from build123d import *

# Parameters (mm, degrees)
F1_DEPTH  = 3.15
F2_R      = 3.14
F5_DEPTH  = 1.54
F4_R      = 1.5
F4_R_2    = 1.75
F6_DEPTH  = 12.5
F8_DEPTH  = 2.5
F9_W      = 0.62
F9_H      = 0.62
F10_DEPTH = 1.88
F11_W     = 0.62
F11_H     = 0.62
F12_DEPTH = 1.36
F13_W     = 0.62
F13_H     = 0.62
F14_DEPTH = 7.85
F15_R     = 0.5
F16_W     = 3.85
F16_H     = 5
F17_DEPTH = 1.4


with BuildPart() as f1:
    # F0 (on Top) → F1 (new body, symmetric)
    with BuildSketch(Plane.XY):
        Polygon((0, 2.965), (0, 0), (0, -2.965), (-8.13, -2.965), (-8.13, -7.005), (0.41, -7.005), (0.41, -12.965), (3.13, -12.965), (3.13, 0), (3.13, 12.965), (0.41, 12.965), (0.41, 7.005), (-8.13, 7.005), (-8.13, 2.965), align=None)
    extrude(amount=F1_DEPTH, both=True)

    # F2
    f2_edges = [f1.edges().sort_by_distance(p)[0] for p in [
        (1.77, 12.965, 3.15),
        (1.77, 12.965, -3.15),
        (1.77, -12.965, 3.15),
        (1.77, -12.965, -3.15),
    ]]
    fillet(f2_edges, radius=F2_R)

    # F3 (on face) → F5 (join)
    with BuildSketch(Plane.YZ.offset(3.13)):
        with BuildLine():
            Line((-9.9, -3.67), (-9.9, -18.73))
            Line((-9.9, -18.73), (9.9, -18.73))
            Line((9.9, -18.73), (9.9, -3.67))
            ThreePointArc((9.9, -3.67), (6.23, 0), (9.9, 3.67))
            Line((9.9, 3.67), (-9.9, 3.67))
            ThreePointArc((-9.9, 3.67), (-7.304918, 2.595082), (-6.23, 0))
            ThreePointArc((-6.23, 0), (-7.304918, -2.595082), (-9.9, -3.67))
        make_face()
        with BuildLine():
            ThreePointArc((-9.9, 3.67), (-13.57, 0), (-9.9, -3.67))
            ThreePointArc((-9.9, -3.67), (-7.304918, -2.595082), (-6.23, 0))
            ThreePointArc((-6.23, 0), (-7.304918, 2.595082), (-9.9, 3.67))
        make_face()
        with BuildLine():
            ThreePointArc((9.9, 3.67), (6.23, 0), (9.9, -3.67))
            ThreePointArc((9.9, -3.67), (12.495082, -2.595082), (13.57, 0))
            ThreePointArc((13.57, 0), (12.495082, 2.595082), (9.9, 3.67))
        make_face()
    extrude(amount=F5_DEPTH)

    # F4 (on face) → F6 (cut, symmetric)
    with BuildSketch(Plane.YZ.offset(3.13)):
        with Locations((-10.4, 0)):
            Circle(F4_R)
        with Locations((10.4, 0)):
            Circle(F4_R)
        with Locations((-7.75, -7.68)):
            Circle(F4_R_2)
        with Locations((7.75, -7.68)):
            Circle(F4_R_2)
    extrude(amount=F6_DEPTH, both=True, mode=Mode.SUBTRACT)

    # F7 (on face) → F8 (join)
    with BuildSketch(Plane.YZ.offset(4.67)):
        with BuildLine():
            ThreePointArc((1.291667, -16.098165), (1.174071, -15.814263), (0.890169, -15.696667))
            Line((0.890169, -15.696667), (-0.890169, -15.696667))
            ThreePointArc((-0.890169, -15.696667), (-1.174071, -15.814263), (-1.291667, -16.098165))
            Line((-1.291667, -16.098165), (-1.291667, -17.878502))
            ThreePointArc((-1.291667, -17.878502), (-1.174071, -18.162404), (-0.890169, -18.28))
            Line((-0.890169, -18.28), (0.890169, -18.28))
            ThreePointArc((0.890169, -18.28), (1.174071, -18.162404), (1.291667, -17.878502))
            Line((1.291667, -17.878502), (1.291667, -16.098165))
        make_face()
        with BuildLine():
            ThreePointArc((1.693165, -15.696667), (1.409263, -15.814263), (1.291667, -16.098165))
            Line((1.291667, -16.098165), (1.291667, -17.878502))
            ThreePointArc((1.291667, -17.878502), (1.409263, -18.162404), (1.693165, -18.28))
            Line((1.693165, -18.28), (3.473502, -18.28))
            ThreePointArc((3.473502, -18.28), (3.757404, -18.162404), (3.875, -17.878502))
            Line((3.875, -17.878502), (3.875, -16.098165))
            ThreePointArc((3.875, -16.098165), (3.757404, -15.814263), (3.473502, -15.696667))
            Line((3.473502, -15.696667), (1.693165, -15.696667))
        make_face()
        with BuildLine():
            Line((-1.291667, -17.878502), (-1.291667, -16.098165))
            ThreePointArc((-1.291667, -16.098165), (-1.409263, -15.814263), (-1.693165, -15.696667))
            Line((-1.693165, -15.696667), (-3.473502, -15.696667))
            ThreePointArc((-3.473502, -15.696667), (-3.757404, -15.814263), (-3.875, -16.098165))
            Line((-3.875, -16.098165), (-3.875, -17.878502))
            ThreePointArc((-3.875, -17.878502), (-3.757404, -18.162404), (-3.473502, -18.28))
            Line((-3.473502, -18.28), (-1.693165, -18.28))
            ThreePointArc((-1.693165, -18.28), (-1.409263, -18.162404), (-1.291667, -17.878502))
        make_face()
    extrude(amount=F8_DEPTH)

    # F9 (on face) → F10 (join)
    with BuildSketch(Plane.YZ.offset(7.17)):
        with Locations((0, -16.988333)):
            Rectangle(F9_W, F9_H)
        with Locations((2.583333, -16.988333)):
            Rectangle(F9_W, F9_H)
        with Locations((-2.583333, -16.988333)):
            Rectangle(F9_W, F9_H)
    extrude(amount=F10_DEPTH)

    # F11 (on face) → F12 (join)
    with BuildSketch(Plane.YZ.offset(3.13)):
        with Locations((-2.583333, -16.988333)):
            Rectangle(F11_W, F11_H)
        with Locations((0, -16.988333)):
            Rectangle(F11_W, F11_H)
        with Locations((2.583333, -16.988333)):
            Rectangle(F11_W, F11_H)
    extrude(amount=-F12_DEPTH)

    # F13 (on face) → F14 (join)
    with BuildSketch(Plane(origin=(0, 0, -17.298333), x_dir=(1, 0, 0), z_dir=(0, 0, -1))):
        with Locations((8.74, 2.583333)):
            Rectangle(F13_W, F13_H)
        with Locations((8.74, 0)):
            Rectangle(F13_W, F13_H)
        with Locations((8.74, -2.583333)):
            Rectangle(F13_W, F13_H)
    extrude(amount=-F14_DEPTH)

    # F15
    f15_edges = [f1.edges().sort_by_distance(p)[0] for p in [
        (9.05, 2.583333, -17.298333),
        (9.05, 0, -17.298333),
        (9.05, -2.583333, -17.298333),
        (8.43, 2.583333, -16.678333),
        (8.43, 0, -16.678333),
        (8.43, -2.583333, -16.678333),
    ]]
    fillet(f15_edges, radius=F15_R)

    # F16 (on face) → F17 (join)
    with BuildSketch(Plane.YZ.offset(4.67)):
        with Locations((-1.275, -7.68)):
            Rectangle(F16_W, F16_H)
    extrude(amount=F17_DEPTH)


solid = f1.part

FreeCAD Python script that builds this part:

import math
import FreeCAD as App
import Part
import Sketcher
Q = App.Units.Quantity


def edges_at(feature, points):
    """Names of the edges that pass closest to the given points."""
    edges = feature.Shape.Edges
    near = lambda p: min(range(len(edges)), key=lambda i: edges[i].distToShape(Part.Vertex(*p))[0])
    return sorted({f"Edge{near(p) + 1}" for p in points})

doc = App.newDocument("Part")
body = doc.addObject("PartDesign::Body", "Body")

sketch1 = body.newObject("Sketcher::SketchObject", "Sketch")
sketch1.AttachmentSupport = (doc.getObject("XY_Plane"), [""])
sketch1.MapMode = "FlatFace"
sketch1.addGeometry(Part.LineSegment(App.Vector(0, 3, 0), App.Vector(0, -3, 0)), False)
sketch1.addGeometry(Part.LineSegment(App.Vector(0, -3, 0), App.Vector(-8.1, -3, 0)), False)
sketch1.addGeometry(Part.LineSegment(App.Vector(-8.1, -3, 0), App.Vector(-8.1, -7, 0)), False)
sketch1.addGeometry(Part.LineSegment(App.Vector(-8.1, -7, 0), App.Vector(0.4, -7, 0)), False)
sketch1.addGeometry(Part.LineSegment(App.Vector(0.4, -7, 0), App.Vector(0.4, -13, 0)), False)
sketch1.addGeometry(Part.LineSegment(App.Vector(0.4, -13, 0), App.Vector(3.1, -13, 0)), False)
sketch1.addGeometry(Part.LineSegment(App.Vector(3.1, -13, 0), App.Vector(3.1, 13, 0)), False)
sketch1.addGeometry(Part.LineSegment(App.Vector(3.1, 13, 0), App.Vector(0.4, 13, 0)), False)
sketch1.addGeometry(Part.LineSegment(App.Vector(0.4, 13, 0), App.Vector(0.4, 7, 0)), False)
sketch1.addGeometry(Part.LineSegment(App.Vector(0.4, 7, 0), App.Vector(-8.1, 7, 0)), False)
sketch1.addGeometry(Part.LineSegment(App.Vector(-8.1, 7, 0), App.Vector(-8.1, 3, 0)), False)
sketch1.addGeometry(Part.LineSegment(App.Vector(-8.1, 3, 0), App.Vector(0, 3, 0)), False)
sketch1.addConstraint(Sketcher.Constraint("Coincident", 0, 2, 1, 1))
sketch1.addConstraint(Sketcher.Constraint("Coincident", 1, 2, 2, 1))
sketch1.addConstraint(Sketcher.Constraint("Coincident", 2, 2, 3, 1))
sketch1.addConstraint(Sketcher.Constraint("Coincident", 3, 2, 4, 1))
sketch1.addConstraint(Sketcher.Constraint("Coincident", 4, 2, 5, 1))
sketch1.addConstraint(Sketcher.Constraint("Coincident", 5, 2, 6, 1))
sketch1.addConstraint(Sketcher.Constraint("Coincident", 6, 2, 7, 1))
sketch1.addConstraint(Sketcher.Constraint("Coincident", 7, 2, 8, 1))
sketch1.addConstraint(Sketcher.Constraint("Coincident", 8, 2, 9, 1))
sketch1.addConstraint(Sketcher.Constraint("Coincident", 9, 2, 10, 1))
sketch1.addConstraint(Sketcher.Constraint("Coincident", 10, 2, 11, 1))
sketch1.addConstraint(Sketcher.Constraint("Coincident", 11, 2, 0, 1))
sketch1.addConstraint(Sketcher.Constraint("Vertical", 0))
sketch1.addConstraint(Sketcher.Constraint("Horizontal", 1))
sketch1.addConstraint(Sketcher.Constraint("Vertical", 2))
sketch1.addConstraint(Sketcher.Constraint("Horizontal", 3))
sketch1.addConstraint(Sketcher.Constraint("Vertical", 4))
sketch1.addConstraint(Sketcher.Constraint("Horizontal", 5))
sketch1.addConstraint(Sketcher.Constraint("Vertical", 6))
sketch1.addConstraint(Sketcher.Constraint("Horizontal", 7))
sketch1.addConstraint(Sketcher.Constraint("Vertical", 8))
sketch1.addConstraint(Sketcher.Constraint("Horizontal", 9))
sketch1.addConstraint(Sketcher.Constraint("Vertical", 10))
sketch1.addConstraint(Sketcher.Constraint("Horizontal", 11))
sketch1.addConstraint(Sketcher.Constraint("Symmetric", 0, 2, 11, 2, -1, 1))
sketch1.addConstraint(Sketcher.Constraint("Symmetric", 4, 2, 7, 2, -1))
sketch1.addConstraint(Sketcher.Constraint("Symmetric", 2, 2, 9, 2, -1))
sketch1.addConstraint(Sketcher.Constraint("DistanceY", 4, 2, 0, 2, Q("10 mm")))
sketch1.addConstraint(Sketcher.Constraint("DistanceX", 1, 2, 1, 1, Q("8.13 mm")))
sketch1.addConstraint(Sketcher.Constraint("DistanceX", 3, 1, 3, 2, Q("8.54 mm")))
sketch1.addConstraint(Sketcher.Constraint("DistanceX", 5, 1, 5, 2, Q("2.72 mm")))
sketch1.addConstraint(Sketcher.Constraint("DistanceY", 0, 2, 0, 1, Q("5.93 mm")))
sketch1.addConstraint(Sketcher.Constraint("DistanceY", 2, 2, 2, 1, Q("4.04 mm")))
pad1 = body.newObject("PartDesign::Pad", "Pad")
pad1.Profile = sketch1
pad1.Length = 6.3
pad1.Midplane = True
doc.recompute()

fillet = body.newObject("PartDesign::Fillet", "Fillet")
fillet.Base = (pad1, edges_at(pad1, [
    (1.77, 12.965, 3.15),
    (1.77, 12.965, -3.15),
    (1.77, -12.965, 3.15),
    (1.77, -12.965, -3.15),
]))
fillet.Radius = 3.14

sketch2 = body.newObject("Sketcher::SketchObject", "Sketch001")
sketch2.AttachmentSupport = (doc.getObject("YZ_Plane"), [""])
sketch2.MapMode = "FlatFace"
sketch2.AttachmentOffset = App.Placement(App.Vector(0, 0, 3.13), App.Rotation())
sketch2.addGeometry(Part.LineSegment(App.Vector(-9.9, -3.7, 0), App.Vector(-9.9, -18.7, 0)), False)
sketch2.addGeometry(Part.LineSegment(App.Vector(-9.9, -18.7, 0), App.Vector(9.9, -18.7, 0)), False)
sketch2.addGeometry(Part.LineSegment(App.Vector(9.9, -18.7, 0), App.Vector(9.9, -3.7, 0)), False)
sketch2.addGeometry(Part.ArcOfCircle(Part.Circle(App.Vector(9.9, 0, 0), App.Vector(0, 0, 1), 3.7), math.radians(-90), math.radians(0)), False)
sketch2.addGeometry(Part.ArcOfCircle(Part.Circle(App.Vector(9.9, 0, 0), App.Vector(0, 0, 1), 3.7), math.radians(0), math.radians(90)), False)
sketch2.addGeometry(Part.LineSegment(App.Vector(9.9, 3.7, 0), App.Vector(-9.9, 3.7, 0)), False)
sketch2.addGeometry(Part.ArcOfCircle(Part.Circle(App.Vector(-9.9, 0, 0), App.Vector(0, 0, 1), 3.7), math.radians(90), math.radians(270)), False)
sketch2.addConstraint(Sketcher.Constraint("Coincident", 0, 2, 1, 1))
sketch2.addConstraint(Sketcher.Constraint("Coincident", 1, 2, 2, 1))
sketch2.addConstraint(Sketcher.Constraint("Coincident", 2, 2, 3, 1))
sketch2.addConstraint(Sketcher.Constraint("Tangent", 3, 2, 4, 1))
sketch2.addConstraint(Sketcher.Constraint("Tangent", 4, 2, 5, 1))
sketch2.addConstraint(Sketcher.Constraint("Tangent", 5, 2, 6, 1))
sketch2.addConstraint(Sketcher.Constraint("Coincident", 6, 2, 0, 1))
sketch2.addConstraint(Sketcher.Constraint("Vertical", 0))
sketch2.addConstraint(Sketcher.Constraint("Horizontal", 1))
sketch2.addConstraint(Sketcher.Constraint("Vertical", 2))
sketch2.addConstraint(Sketcher.Constraint("Horizontal", 5))
sketch2.addConstraint(Sketcher.Constraint("Equal", 3, 4))
sketch2.addConstraint(Sketcher.Constraint("Equal", 4, 6))
sketch2.addConstraint(Sketcher.Constraint("Symmetric", 3, 3, 6, 3, -1, 1))
sketch2.addConstraint(Sketcher.Constraint("PointOnObject", 3, 2, -1))
sketch2.addConstraint(Sketcher.Constraint("Vertical", 6, 3, 0, 2))
sketch2.addConstraint(Sketcher.Constraint("Vertical", 4, 3, 1, 2))
sketch2.addConstraint(Sketcher.Constraint("Radius", 3, Q("3.67 mm")))
sketch2.addConstraint(Sketcher.Constraint("DistanceX", 1, 1, 1, 2, Q("19.8 mm")))
sketch2.addConstraint(Sketcher.Constraint("DistanceY", 0, 2, 0, 1, Q("15.06 mm")))
pad2 = body.newObject("PartDesign::Pad", "Pad001")
pad2.Profile = sketch2
pad2.Length = 1.54

sketch3 = body.newObject("Sketcher::SketchObject", "Sketch002")
sketch3.AttachmentSupport = (doc.getObject("YZ_Plane"), [""])
sketch3.MapMode = "FlatFace"
sketch3.AttachmentOffset = App.Placement(App.Vector(0, 0, 3.13), App.Rotation())
sketch3.addGeometry(Part.Circle(App.Vector(-10.4, 0, 0), App.Vector(0, 0, 1), 1.5), False)
sketch3.addGeometry(Part.Circle(App.Vector(10.4, 0, 0), App.Vector(0, 0, 1), 1.5), False)
sketch3.addGeometry(Part.Circle(App.Vector(-7.8, -7.7, 0), App.Vector(0, 0, 1), 1.8), False)
sketch3.addGeometry(Part.Circle(App.Vector(7.8, -7.7, 0), App.Vector(0, 0, 1), 1.8), False)
sketch3.addConstraint(Sketcher.Constraint("Equal", 0, 1))
sketch3.addConstraint(Sketcher.Constraint("Equal", 2, 3))
sketch3.addConstraint(Sketcher.Constraint("Symmetric", 0, 3, 1, 3, -1, 1))
sketch3.addConstraint(Sketcher.Constraint("Symmetric", 2, 3, 3, 3, -2))
sketch3.addConstraint(Sketcher.Constraint("PointOnObject", 0, 3, -1))
sketch3.addConstraint(Sketcher.Constraint("Diameter", 0, Q("3 mm")))
sketch3.addConstraint(Sketcher.Constraint("Diameter", 2, Q("3.5 mm")))
sketch3.addConstraint(Sketcher.Constraint("DistanceX", 0, 3, -1, 1, Q("10.4 mm")))
sketch3.addConstraint(Sketcher.Constraint("DistanceX", 2, 3, 3, 3, Q("15.5 mm")))
sketch3.addConstraint(Sketcher.Constraint("DistanceY", 2, 3, -1, 1, Q("7.68 mm")))
pocket1 = body.newObject("PartDesign::Pocket", "Pocket")
pocket1.Profile = sketch3
pocket1.Length = 25
pocket1.Midplane = True

sketch4 = body.newObject("Sketcher::SketchObject", "Sketch003")
sketch4.AttachmentSupport = (doc.getObject("YZ_Plane"), [""])
sketch4.MapMode = "FlatFace"
sketch4.AttachmentOffset = App.Placement(App.Vector(0, 0, 4.67), App.Rotation())
sketch4.addGeometry(Part.ArcOfCircle(Part.Circle(App.Vector(0.89, -16.1, 0), App.Vector(0, 0, 1), 0.4), math.radians(0), math.radians(90)), False)
sketch4.addGeometry(Part.LineSegment(App.Vector(0.89, -15.7, 0), App.Vector(-0.89, -15.7, 0)), False)
sketch4.addGeometry(Part.ArcOfCircle(Part.Circle(App.Vector(-0.89, -16.1, 0), App.Vector(0, 0, 1), 0.4), math.radians(90), math.radians(180)), False)
sketch4.addGeometry(Part.ArcOfCircle(Part.Circle(App.Vector(-1.69, -16.1, 0), App.Vector(0, 0, 1), 0.4), math.radians(0), math.radians(90)), False)
sketch4.addGeometry(Part.LineSegment(App.Vector(-1.69, -15.7, 0), App.Vector(-3.47, -15.7, 0)), False)
sketch4.addGeometry(Part.ArcOfCircle(Part.Circle(App.Vector(-3.47, -16.1, 0), App.Vector(0, 0, 1), 0.4), math.radians(90), math.radians(180)), False)
sketch4.addGeometry(Part.LineSegment(App.Vector(-3.88, -16.1, 0), App.Vector(-3.88, -17.88, 0)), False)
sketch4.addGeometry(Part.ArcOfCircle(Part.Circle(App.Vector(-3.47, -17.88, 0), App.Vector(0, 0, 1), 0.4), math.radians(180), math.radians(270)), False)
sketch4.addGeometry(Part.LineSegment(App.Vector(-3.47, -18.28, 0), App.Vector(-1.69, -18.28, 0)), False)
sketch4.addGeometry(Part.ArcOfCircle(Part.Circle(App.Vector(-1.69, -17.88, 0), App.Vector(0, 0, 1), 0.4), math.radians(-90), math.radians(0)), False)
sketch4.addGeometry(Part.ArcOfCircle(Part.Circle(App.Vector(-0.89, -17.88, 0), App.Vector(0, 0, 1), 0.4), math.radians(180), math.radians(270)), False)
sketch4.addGeometry(Part.LineSegment(App.Vector(-0.89, -18.28, 0), App.Vector(0.89, -18.28, 0)), False)
sketch4.addGeometry(Part.ArcOfCircle(Part.Circle(App.Vector(0.89, -17.88, 0), App.Vector(0, 0, 1), 0.4), math.radians(-90), math.radians(0)), False)
sketch4.addGeometry(Part.ArcOfCircle(Part.Circle(App.Vector(1.69, -17.88, 0), App.Vector(0, 0, 1), 0.4), math.radians(180), math.radians(270)), False)
sketch4.addGeometry(Part.LineSegment(App.Vector(1.69, -18.28, 0), App.Vector(3.47, -18.28, 0)), False)
sketch4.addGeometry(Part.ArcOfCircle(Part.Circle(App.Vector(3.47, -17.88, 0), App.Vector(0, 0, 1), 0.4), math.radians(-90), math.radians(0)), False)
sketch4.addGeometry(Part.LineSegment(App.Vector(3.88, -17.88, 0), App.Vector(3.88, -16.1, 0)), False)
sketch4.addGeometry(Part.ArcOfCircle(Part.Circle(App.Vector(3.47, -16.1, 0), App.Vector(0, 0, 1), 0.4), math.radians(0), math.radians(90)), False)
sketch4.addGeometry(Part.LineSegment(App.Vector(3.47, -15.7, 0), App.Vector(1.69, -15.7, 0)), False)
sketch4.addGeometry(Part.ArcOfCircle(Part.Circle(App.Vector(1.69, -16.1, 0), App.Vector(0, 0, 1), 0.4), math.radians(90), math.radians(180)), False)
sketch4.addConstraint(Sketcher.Constraint("Tangent", 0, 2, 1, 1))
sketch4.addConstraint(Sketcher.Constraint("Tangent", 1, 2, 2, 1))
sketch4.addConstraint(Sketcher.Constraint("Tangent", 2, 2, 3, 1))
sketch4.addConstraint(Sketcher.Constraint("Tangent", 3, 2, 4, 1))
sketch4.addConstraint(Sketcher.Constraint("Tangent", 4, 2, 5, 1))
sketch4.addConstraint(Sketcher.Constraint("Tangent", 5, 2, 6, 1))
sketch4.addConstraint(Sketcher.Constraint("Tangent", 6, 2, 7, 1))
sketch4.addConstraint(Sketcher.Constraint("Tangent", 7, 2, 8, 1))
sketch4.addConstraint(Sketcher.Constraint("Tangent", 8, 2, 9, 1))
sketch4.addConstraint(Sketcher.Constraint("Tangent", 9, 2, 10, 1))
sketch4.addConstraint(Sketcher.Constraint("Tangent", 10, 2, 11, 1))
sketch4.addConstraint(Sketcher.Constraint("Tangent", 11, 2, 12, 1))
sketch4.addConstraint(Sketcher.Constraint("Tangent", 12, 2, 13, 1))
sketch4.addConstraint(Sketcher.Constraint("Tangent", 13, 2, 14, 1))
sketch4.addConstraint(Sketcher.Constraint("Tangent", 14, 2, 15, 1))
sketch4.addConstraint(Sketcher.Constraint("Tangent", 15, 2, 16, 1))
sketch4.addConstraint(Sketcher.Constraint("Tangent", 16, 2, 17, 1))
sketch4.addConstraint(Sketcher.Constraint("Tangent", 17, 2, 18, 1))
sketch4.addConstraint(Sketcher.Constraint("Tangent", 18, 2, 19, 1))
sketch4.addConstraint(Sketcher.Constraint("Tangent", 19, 2, 0, 1))
sketch4.addConstraint(Sketcher.Constraint("Horizontal", 1))
sketch4.addConstraint(Sketcher.Constraint("Horizontal", 4))
sketch4.addConstraint(Sketcher.Constraint("Vertical", 6))
sketch4.addConstraint(Sketcher.Constraint("Horizontal", 8))
sketch4.addConstraint(Sketcher.Constraint("Horizontal", 11))
sketch4.addConstraint(Sketcher.Constraint("Horizontal", 14))
sketch4.addConstraint(Sketcher.Constraint("Vertical", 16))
sketch4.addConstraint(Sketcher.Constraint("Horizontal", 18))
sketch4.addConstraint(Sketcher.Constraint("Equal", 0, 2))
sketch4.addConstraint(Sketcher.Constraint("Equal", 2, 3))
sketch4.addConstraint(Sketcher.Constraint("Equal", 3, 5))
sketch4.addConstraint(Sketcher.Constraint("Equal", 5, 7))
sketch4.addConstraint(Sketcher.Constraint("Equal", 7, 9))
sketch4.addConstraint(Sketcher.Constraint("Equal", 9, 10))
sketch4.addConstraint(Sketcher.Constraint("Equal", 10, 12))
sketch4.addConstraint(Sketcher.Constraint("Equal", 12, 13))
sketch4.addConstraint(Sketcher.Constraint("Equal", 13, 15))
sketch4.addConstraint(Sketcher.Constraint("Equal", 15, 17))
sketch4.addConstraint(Sketcher.Constraint("Equal", 17, 19))
sketch4.addConstraint(Sketcher.Constraint("Symmetric", 9, 3, 13, 3, -2))
sketch4.addConstraint(Sketcher.Constraint("Symmetric", 5, 3, 17, 3, -2))
sketch4.addConstraint(Sketcher.Constraint("Horizontal", 2, 3, 3, 3))
sketch4.addConstraint(Sketcher.Constraint("Horizontal", 9, 3, 10, 3))
sketch4.addConstraint(Sketcher.Constraint("Vertical", 3, 3, 9, 3))
sketch4.addConstraint(Sketcher.Constraint("Vertical", 0, 3, 12, 3))
sketch4.addConstraint(Sketcher.Constraint("Equal", 1, 4))
sketch4.addConstraint(Sketcher.Constraint("Equal", 18, 6))
sketch4.addConstraint(Sketcher.Constraint("DistanceY", 7, 2, -1, 1, Q("18.28 mm")))
sketch4.addConstraint(Sketcher.Constraint("DistanceX", 5, 2, -1, 1, Q("3.875 mm")))
sketch4.addConstraint(Sketcher.Constraint("Radius", 0, Q("0.401498 mm")))
pad3 = body.newObject("PartDesign::Pad", "Pad002")
pad3.Profile = sketch4
pad3.Length = 2.5

sketch5 = body.newObject("Sketcher::SketchObject", "Sketch004")
sketch5.AttachmentSupport = (doc.getObject("YZ_Plane"), [""])
sketch5.MapMode = "FlatFace"
sketch5.AttachmentOffset = App.Placement(App.Vector(0, 0, 7.17), App.Rotation())
sketch5.addGeometry(Part.LineSegment(App.Vector(-0.3, -16.7, 0), App.Vector(-0.3, -17.3, 0)), False)
sketch5.addGeometry(Part.LineSegment(App.Vector(-0.3, -17.3, 0), App.Vector(0.3, -17.3, 0)), False)
sketch5.addGeometry(Part.LineSegment(App.Vector(0.3, -17.3, 0), App.Vector(0.3, -16.7, 0)), False)
sketch5.addGeometry(Part.LineSegment(App.Vector(0.3, -16.7, 0), App.Vector(-0.3, -16.7, 0)), False)
sketch5.addGeometry(Part.LineSegment(App.Vector(2.3, -16.7, 0), App.Vector(2.3, -17.3, 0)), False)
sketch5.addGeometry(Part.LineSegment(App.Vector(2.3, -17.3, 0), App.Vector(2.9, -17.3, 0)), False)
sketch5.addGeometry(Part.LineSegment(App.Vector(2.9, -17.3, 0), App.Vector(2.9, -16.7, 0)), False)
sketch5.addGeometry(Part.LineSegment(App.Vector(2.9, -16.7, 0), App.Vector(2.3, -16.7, 0)), False)
sketch5.addGeometry(Part.LineSegment(App.Vector(-2.9, -16.7, 0), App.Vector(-2.9, -17.3, 0)), False)
sketch5.addGeometry(Part.LineSegment(App.Vector(-2.9, -17.3, 0), App.Vector(-2.3, -17.3, 0)), False)
sketch5.addGeometry(Part.LineSegment(App.Vector(-2.3, -17.3, 0), App.Vector(-2.3, -16.7, 0)), False)
sketch5.addGeometry(Part.LineSegment(App.Vector(-2.3, -16.7, 0), App.Vector(-2.9, -16.7, 0)), False)
sketch5.addConstraint(Sketcher.Constraint("Coincident", 0, 2, 1, 1))
sketch5.addConstraint(Sketcher.Constraint("Coincident", 1, 2, 2, 1))
sketch5.addConstraint(Sketcher.Constraint("Coincident", 2, 2, 3, 1))
sketch5.addConstraint(Sketcher.Constraint("Coincident", 3, 2, 0, 1))
sketch5.addConstraint(Sketcher.Constraint("Coincident", 4, 2, 5, 1))
sketch5.addConstraint(Sketcher.Constraint("Coincident", 5, 2, 6, 1))
sketch5.addConstraint(Sketcher.Constraint("Coincident", 6, 2, 7, 1))
sketch5.addConstraint(Sketcher.Constraint("Coincident", 7, 2, 4, 1))
sketch5.addConstraint(Sketcher.Constraint("Coincident", 8, 2, 9, 1))
sketch5.addConstraint(Sketcher.Constraint("Coincident", 9, 2, 10, 1))
sketch5.addConstraint(Sketcher.Constraint("Coincident", 10, 2, 11, 1))
sketch5.addConstraint(Sketcher.Constraint("Coincident", 11, 2, 8, 1))
sketch5.addConstraint(Sketcher.Constraint("Vertical", 0))
sketch5.addConstraint(Sketcher.Constraint("Horizontal", 1))
sketch5.addConstraint(Sketcher.Constraint("Vertical", 2))
sketch5.addConstraint(Sketcher.Constraint("Horizontal", 3))
sketch5.addConstraint(Sketcher.Constraint("Vertical", 4))
sketch5.addConstraint(Sketcher.Constraint("Horizontal", 5))
sketch5.addConstraint(Sketcher.Constraint("Vertical", 6))
sketch5.addConstraint(Sketcher.Constraint("Horizontal", 7))
sketch5.addConstraint(Sketcher.Constraint("Vertical", 8))
sketch5.addConstraint(Sketcher.Constraint("Horizontal", 9))
sketch5.addConstraint(Sketcher.Constraint("Vertical", 10))
sketch5.addConstraint(Sketcher.Constraint("Horizontal", 11))
sketch5.addConstraint(Sketcher.Constraint("Symmetric", 5, 2, 8, 2, -2))
sketch5.addConstraint(Sketcher.Constraint("Symmetric", 7, 2, 10, 2, -2))
sketch5.addConstraint(Sketcher.Constraint("Horizontal", 1, 2, 4, 2))
sketch5.addConstraint(Sketcher.Constraint("Horizontal", 3, 2, 6, 2))
sketch5.addConstraint(Sketcher.Constraint("Equal", 3, 5))
sketch5.addConstraint(Sketcher.Constraint("Equal", 11, 0))
sketch5.addConstraint(Sketcher.Constraint("DistanceX", 1, 1, 1, 2, Q("0.62 mm")))
sketch5.addConstraint(Sketcher.Constraint("DistanceX", 0, 2, -1, 1, Q("0.31 mm")))
sketch5.addConstraint(Sketcher.Constraint("DistanceY", 0, 2, -1, 1, Q("17.298333 mm")))
sketch5.addConstraint(Sketcher.Constraint("DistanceX", -1, 1, 4, 2, Q("2.273333 mm")))
pad4 = body.newObject("PartDesign::Pad", "Pad003")
pad4.Profile = sketch5
pad4.Length = 1.88

sketch6 = body.newObject("Sketcher::SketchObject", "Sketch005")
sketch6.AttachmentSupport = (doc.getObject("YZ_Plane"), [""])
sketch6.MapMode = "FlatFace"
sketch6.AttachmentOffset = App.Placement(App.Vector(0, 0, 3.13), App.Rotation())
sketch6.addGeometry(Part.LineSegment(App.Vector(-2.9, -16.7, 0), App.Vector(-2.9, -17.3, 0)), False)
sketch6.addGeometry(Part.LineSegment(App.Vector(-2.9, -17.3, 0), App.Vector(-2.3, -17.3, 0)), False)
sketch6.addGeometry(Part.LineSegment(App.Vector(-2.3, -17.3, 0), App.Vector(-2.3, -16.7, 0)), False)
sketch6.addGeometry(Part.LineSegment(App.Vector(-2.3, -16.7, 0), App.Vector(-2.9, -16.7, 0)), False)
sketch6.addGeometry(Part.LineSegment(App.Vector(-0.3, -16.7, 0), App.Vector(-0.3, -17.3, 0)), False)
sketch6.addGeometry(Part.LineSegment(App.Vector(-0.3, -17.3, 0), App.Vector(0.3, -17.3, 0)), False)
sketch6.addGeometry(Part.LineSegment(App.Vector(0.3, -17.3, 0), App.Vector(0.3, -16.7, 0)), False)
sketch6.addGeometry(Part.LineSegment(App.Vector(0.3, -16.7, 0), App.Vector(-0.3, -16.7, 0)), False)
sketch6.addGeometry(Part.LineSegment(App.Vector(2.3, -16.7, 0), App.Vector(2.3, -17.3, 0)), False)
sketch6.addGeometry(Part.LineSegment(App.Vector(2.3, -17.3, 0), App.Vector(2.9, -17.3, 0)), False)
sketch6.addGeometry(Part.LineSegment(App.Vector(2.9, -17.3, 0), App.Vector(2.9, -16.7, 0)), False)
sketch6.addGeometry(Part.LineSegment(App.Vector(2.9, -16.7, 0), App.Vector(2.3, -16.7, 0)), False)
sketch6.addConstraint(Sketcher.Constraint("Coincident", 0, 2, 1, 1))
sketch6.addConstraint(Sketcher.Constraint("Coincident", 1, 2, 2, 1))
sketch6.addConstraint(Sketcher.Constraint("Coincident", 2, 2, 3, 1))
sketch6.addConstraint(Sketcher.Constraint("Coincident", 3, 2, 0, 1))
sketch6.addConstraint(Sketcher.Constraint("Coincident", 4, 2, 5, 1))
sketch6.addConstraint(Sketcher.Constraint("Coincident", 5, 2, 6, 1))
sketch6.addConstraint(Sketcher.Constraint("Coincident", 6, 2, 7, 1))
sketch6.addConstraint(Sketcher.Constraint("Coincident", 7, 2, 4, 1))
sketch6.addConstraint(Sketcher.Constraint("Coincident", 8, 2, 9, 1))
sketch6.addConstraint(Sketcher.Constraint("Coincident", 9, 2, 10, 1))
sketch6.addConstraint(Sketcher.Constraint("Coincident", 10, 2, 11, 1))
sketch6.addConstraint(Sketcher.Constraint("Coincident", 11, 2, 8, 1))
sketch6.addConstraint(Sketcher.Constraint("Vertical", 0))
sketch6.addConstraint(Sketcher.Constraint("Horizontal", 1))
sketch6.addConstraint(Sketcher.Constraint("Vertical", 2))
sketch6.addConstraint(Sketcher.Constraint("Horizontal", 3))
sketch6.addConstraint(Sketcher.Constraint("Vertical", 4))
sketch6.addConstraint(Sketcher.Constraint("Horizontal", 5))
sketch6.addConstraint(Sketcher.Constraint("Vertical", 6))
sketch6.addConstraint(Sketcher.Constraint("Horizontal", 7))
sketch6.addConstraint(Sketcher.Constraint("Vertical", 8))
sketch6.addConstraint(Sketcher.Constraint("Horizontal", 9))
sketch6.addConstraint(Sketcher.Constraint("Vertical", 10))
sketch6.addConstraint(Sketcher.Constraint("Horizontal", 11))
sketch6.addConstraint(Sketcher.Constraint("Symmetric", 1, 2, 8, 2, -2))
sketch6.addConstraint(Sketcher.Constraint("Symmetric", 3, 2, 10, 2, -2))
sketch6.addConstraint(Sketcher.Constraint("Horizontal", 1, 2, 4, 2))
sketch6.addConstraint(Sketcher.Constraint("Horizontal", 3, 2, 6, 2))
sketch6.addConstraint(Sketcher.Constraint("Equal", 3, 5))
sketch6.addConstraint(Sketcher.Constraint("Equal", 11, 0))
sketch6.addConstraint(Sketcher.Constraint("DistanceX", 1, 1, 1, 2, Q("0.62 mm")))
sketch6.addConstraint(Sketcher.Constraint("DistanceX", 4, 2, -1, 1, Q("0.31 mm")))
sketch6.addConstraint(Sketcher.Constraint("DistanceX", 0, 2, -1, 1, Q("2.893333 mm")))
sketch6.addConstraint(Sketcher.Constraint("DistanceY", 0, 2, -1, 1, Q("17.298333 mm")))
pad5 = body.newObject("PartDesign::Pad", "Pad004")
pad5.Profile = sketch6
pad5.Length = 1.36
pad5.Reversed = True

sketch7 = body.newObject("Sketcher::SketchObject", "Sketch006")
sketch7.AttachmentSupport = (doc.getObject("XY_Plane"), [""])
sketch7.MapMode = "FlatFace"
sketch7.AttachmentOffset = App.Placement(App.Vector(0, 0, -17.298333), App.Rotation())
sketch7.addGeometry(Part.LineSegment(App.Vector(8.4, -2.9, 0), App.Vector(8.4, -2.3, 0)), False)
sketch7.addGeometry(Part.LineSegment(App.Vector(8.4, -2.3, 0), App.Vector(9.1, -2.3, 0)), False)
sketch7.addGeometry(Part.LineSegment(App.Vector(9.1, -2.3, 0), App.Vector(9.1, -2.9, 0)), False)
sketch7.addGeometry(Part.LineSegment(App.Vector(9.1, -2.9, 0), App.Vector(8.4, -2.9, 0)), False)
sketch7.addGeometry(Part.LineSegment(App.Vector(8.4, -0.3, 0), App.Vector(8.4, 0.3, 0)), False)
sketch7.addGeometry(Part.LineSegment(App.Vector(8.4, 0.3, 0), App.Vector(9.1, 0.3, 0)), False)
sketch7.addGeometry(Part.LineSegment(App.Vector(9.1, 0.3, 0), App.Vector(9.1, -0.3, 0)), False)
sketch7.addGeometry(Part.LineSegment(App.Vector(9.1, -0.3, 0), App.Vector(8.4, -0.3, 0)), False)
sketch7.addGeometry(Part.LineSegment(App.Vector(8.4, 2.3, 0), App.Vector(8.4, 2.9, 0)), False)
sketch7.addGeometry(Part.LineSegment(App.Vector(8.4, 2.9, 0), App.Vector(9.1, 2.9, 0)), False)
sketch7.addGeometry(Part.LineSegment(App.Vector(9.1, 2.9, 0), App.Vector(9.1, 2.3, 0)), False)
sketch7.addGeometry(Part.LineSegment(App.Vector(9.1, 2.3, 0), App.Vector(8.4, 2.3, 0)), False)
sketch7.addConstraint(Sketcher.Constraint("Coincident", 0, 2, 1, 1))
sketch7.addConstraint(Sketcher.Constraint("Coincident", 1, 2, 2, 1))
sketch7.addConstraint(Sketcher.Constraint("Coincident", 2, 2, 3, 1))
sketch7.addConstraint(Sketcher.Constraint("Coincident", 3, 2, 0, 1))
sketch7.addConstraint(Sketcher.Constraint("Coincident", 4, 2, 5, 1))
sketch7.addConstraint(Sketcher.Constraint("Coincident", 5, 2, 6, 1))
sketch7.addConstraint(Sketcher.Constraint("Coincident", 6, 2, 7, 1))
sketch7.addConstraint(Sketcher.Constraint("Coincident", 7, 2, 4, 1))
sketch7.addConstraint(Sketcher.Constraint("Coincident", 8, 2, 9, 1))
sketch7.addConstraint(Sketcher.Constraint("Coincident", 9, 2, 10, 1))
sketch7.addConstraint(Sketcher.Constraint("Coincident", 10, 2, 11, 1))
sketch7.addConstraint(Sketcher.Constraint("Coincident", 11, 2, 8, 1))
sketch7.addConstraint(Sketcher.Constraint("Vertical", 0))
sketch7.addConstraint(Sketcher.Constraint("Horizontal", 1))
sketch7.addConstraint(Sketcher.Constraint("Vertical", 2))
sketch7.addConstraint(Sketcher.Constraint("Horizontal", 3))
sketch7.addConstraint(Sketcher.Constraint("Vertical", 4))
sketch7.addConstraint(Sketcher.Constraint("Horizontal", 5))
sketch7.addConstraint(Sketcher.Constraint("Vertical", 6))
sketch7.addConstraint(Sketcher.Constraint("Horizontal", 7))
sketch7.addConstraint(Sketcher.Constraint("Vertical", 8))
sketch7.addConstraint(Sketcher.Constraint("Horizontal", 9))
sketch7.addConstraint(Sketcher.Constraint("Vertical", 10))
sketch7.addConstraint(Sketcher.Constraint("Horizontal", 11))
sketch7.addConstraint(Sketcher.Constraint("Symmetric", 3, 2, 8, 2, -1))
sketch7.addConstraint(Sketcher.Constraint("Symmetric", 1, 2, 10, 2, -1))
sketch7.addConstraint(Sketcher.Constraint("Vertical", 3, 2, 4, 2))
sketch7.addConstraint(Sketcher.Constraint("Vertical", 2, 2, 5, 2))
sketch7.addConstraint(Sketcher.Constraint("Equal", 11, 0))
sketch7.addConstraint(Sketcher.Constraint("Equal", 2, 4))
sketch7.addConstraint(Sketcher.Constraint("DistanceX", 1, 1, 1, 2, Q("0.62 mm")))
sketch7.addConstraint(Sketcher.Constraint("DistanceX", -1, 1, 0, 2, Q("8.43 mm")))
sketch7.addConstraint(Sketcher.Constraint("DistanceY", -1, 1, 4, 2, Q("0.31 mm")))
sketch7.addConstraint(Sketcher.Constraint("DistanceY", 0, 2, -1, 1, Q("2.273333 mm")))
pad6 = body.newObject("PartDesign::Pad", "Pad005")
pad6.Profile = sketch7
pad6.Length = 7.85
doc.recompute()

fillet2 = body.newObject("PartDesign::Fillet", "Fillet001")
fillet2.Base = (pad6, edges_at(pad6, [
    (9.05, 2.583, -17.298),
    (9.05, 0, -17.298),
    (9.05, -2.583, -17.298),
    (8.43, 2.583, -16.678),
    (8.43, 0, -16.678),
    (8.43, -2.583, -16.678),
]))
fillet2.Radius = 0.5

sketch8 = body.newObject("Sketcher::SketchObject", "Sketch007")
sketch8.AttachmentSupport = (doc.getObject("YZ_Plane"), [""])
sketch8.MapMode = "FlatFace"
sketch8.AttachmentOffset = App.Placement(App.Vector(0, 0, 4.67), App.Rotation())
sketch8.addGeometry(Part.LineSegment(App.Vector(-3.2, -5.2, 0), App.Vector(-3.2, -10.2, 0)), False)
sketch8.addGeometry(Part.LineSegment(App.Vector(-3.2, -10.2, 0), App.Vector(0.7, -10.2, 0)), False)
sketch8.addGeometry(Part.LineSegment(App.Vector(0.7, -10.2, 0), App.Vector(0.7, -5.2, 0)), False)
sketch8.addGeometry(Part.LineSegment(App.Vector(0.7, -5.2, 0), App.Vector(-3.2, -5.2, 0)), False)
sketch8.addConstraint(Sketcher.Constraint("Coincident", 0, 2, 1, 1))
sketch8.addConstraint(Sketcher.Constraint("Coincident", 1, 2, 2, 1))
sketch8.addConstraint(Sketcher.Constraint("Coincident", 2, 2, 3, 1))
sketch8.addConstraint(Sketcher.Constraint("Coincident", 3, 2, 0, 1))
sketch8.addConstraint(Sketcher.Constraint("Vertical", 0))
sketch8.addConstraint(Sketcher.Constraint("Horizontal", 1))
sketch8.addConstraint(Sketcher.Constraint("Vertical", 2))
sketch8.addConstraint(Sketcher.Constraint("Horizontal", 3))
sketch8.addConstraint(Sketcher.Constraint("DistanceY", 0, 2, 0, 1, Q("5 mm")))
sketch8.addConstraint(Sketcher.Constraint("DistanceX", 1, 1, 1, 2, Q("3.85 mm")))
sketch8.addConstraint(Sketcher.Constraint("DistanceX", 0, 2, -1, 1, Q("3.2 mm")))
sketch8.addConstraint(Sketcher.Constraint("DistanceY", 0, 2, -1, 1, Q("10.18 mm")))
pad7 = body.newObject("PartDesign::Pad", "Pad006")
pad7.Profile = sketch8
pad7.Length = 1.4

doc.recompute()
